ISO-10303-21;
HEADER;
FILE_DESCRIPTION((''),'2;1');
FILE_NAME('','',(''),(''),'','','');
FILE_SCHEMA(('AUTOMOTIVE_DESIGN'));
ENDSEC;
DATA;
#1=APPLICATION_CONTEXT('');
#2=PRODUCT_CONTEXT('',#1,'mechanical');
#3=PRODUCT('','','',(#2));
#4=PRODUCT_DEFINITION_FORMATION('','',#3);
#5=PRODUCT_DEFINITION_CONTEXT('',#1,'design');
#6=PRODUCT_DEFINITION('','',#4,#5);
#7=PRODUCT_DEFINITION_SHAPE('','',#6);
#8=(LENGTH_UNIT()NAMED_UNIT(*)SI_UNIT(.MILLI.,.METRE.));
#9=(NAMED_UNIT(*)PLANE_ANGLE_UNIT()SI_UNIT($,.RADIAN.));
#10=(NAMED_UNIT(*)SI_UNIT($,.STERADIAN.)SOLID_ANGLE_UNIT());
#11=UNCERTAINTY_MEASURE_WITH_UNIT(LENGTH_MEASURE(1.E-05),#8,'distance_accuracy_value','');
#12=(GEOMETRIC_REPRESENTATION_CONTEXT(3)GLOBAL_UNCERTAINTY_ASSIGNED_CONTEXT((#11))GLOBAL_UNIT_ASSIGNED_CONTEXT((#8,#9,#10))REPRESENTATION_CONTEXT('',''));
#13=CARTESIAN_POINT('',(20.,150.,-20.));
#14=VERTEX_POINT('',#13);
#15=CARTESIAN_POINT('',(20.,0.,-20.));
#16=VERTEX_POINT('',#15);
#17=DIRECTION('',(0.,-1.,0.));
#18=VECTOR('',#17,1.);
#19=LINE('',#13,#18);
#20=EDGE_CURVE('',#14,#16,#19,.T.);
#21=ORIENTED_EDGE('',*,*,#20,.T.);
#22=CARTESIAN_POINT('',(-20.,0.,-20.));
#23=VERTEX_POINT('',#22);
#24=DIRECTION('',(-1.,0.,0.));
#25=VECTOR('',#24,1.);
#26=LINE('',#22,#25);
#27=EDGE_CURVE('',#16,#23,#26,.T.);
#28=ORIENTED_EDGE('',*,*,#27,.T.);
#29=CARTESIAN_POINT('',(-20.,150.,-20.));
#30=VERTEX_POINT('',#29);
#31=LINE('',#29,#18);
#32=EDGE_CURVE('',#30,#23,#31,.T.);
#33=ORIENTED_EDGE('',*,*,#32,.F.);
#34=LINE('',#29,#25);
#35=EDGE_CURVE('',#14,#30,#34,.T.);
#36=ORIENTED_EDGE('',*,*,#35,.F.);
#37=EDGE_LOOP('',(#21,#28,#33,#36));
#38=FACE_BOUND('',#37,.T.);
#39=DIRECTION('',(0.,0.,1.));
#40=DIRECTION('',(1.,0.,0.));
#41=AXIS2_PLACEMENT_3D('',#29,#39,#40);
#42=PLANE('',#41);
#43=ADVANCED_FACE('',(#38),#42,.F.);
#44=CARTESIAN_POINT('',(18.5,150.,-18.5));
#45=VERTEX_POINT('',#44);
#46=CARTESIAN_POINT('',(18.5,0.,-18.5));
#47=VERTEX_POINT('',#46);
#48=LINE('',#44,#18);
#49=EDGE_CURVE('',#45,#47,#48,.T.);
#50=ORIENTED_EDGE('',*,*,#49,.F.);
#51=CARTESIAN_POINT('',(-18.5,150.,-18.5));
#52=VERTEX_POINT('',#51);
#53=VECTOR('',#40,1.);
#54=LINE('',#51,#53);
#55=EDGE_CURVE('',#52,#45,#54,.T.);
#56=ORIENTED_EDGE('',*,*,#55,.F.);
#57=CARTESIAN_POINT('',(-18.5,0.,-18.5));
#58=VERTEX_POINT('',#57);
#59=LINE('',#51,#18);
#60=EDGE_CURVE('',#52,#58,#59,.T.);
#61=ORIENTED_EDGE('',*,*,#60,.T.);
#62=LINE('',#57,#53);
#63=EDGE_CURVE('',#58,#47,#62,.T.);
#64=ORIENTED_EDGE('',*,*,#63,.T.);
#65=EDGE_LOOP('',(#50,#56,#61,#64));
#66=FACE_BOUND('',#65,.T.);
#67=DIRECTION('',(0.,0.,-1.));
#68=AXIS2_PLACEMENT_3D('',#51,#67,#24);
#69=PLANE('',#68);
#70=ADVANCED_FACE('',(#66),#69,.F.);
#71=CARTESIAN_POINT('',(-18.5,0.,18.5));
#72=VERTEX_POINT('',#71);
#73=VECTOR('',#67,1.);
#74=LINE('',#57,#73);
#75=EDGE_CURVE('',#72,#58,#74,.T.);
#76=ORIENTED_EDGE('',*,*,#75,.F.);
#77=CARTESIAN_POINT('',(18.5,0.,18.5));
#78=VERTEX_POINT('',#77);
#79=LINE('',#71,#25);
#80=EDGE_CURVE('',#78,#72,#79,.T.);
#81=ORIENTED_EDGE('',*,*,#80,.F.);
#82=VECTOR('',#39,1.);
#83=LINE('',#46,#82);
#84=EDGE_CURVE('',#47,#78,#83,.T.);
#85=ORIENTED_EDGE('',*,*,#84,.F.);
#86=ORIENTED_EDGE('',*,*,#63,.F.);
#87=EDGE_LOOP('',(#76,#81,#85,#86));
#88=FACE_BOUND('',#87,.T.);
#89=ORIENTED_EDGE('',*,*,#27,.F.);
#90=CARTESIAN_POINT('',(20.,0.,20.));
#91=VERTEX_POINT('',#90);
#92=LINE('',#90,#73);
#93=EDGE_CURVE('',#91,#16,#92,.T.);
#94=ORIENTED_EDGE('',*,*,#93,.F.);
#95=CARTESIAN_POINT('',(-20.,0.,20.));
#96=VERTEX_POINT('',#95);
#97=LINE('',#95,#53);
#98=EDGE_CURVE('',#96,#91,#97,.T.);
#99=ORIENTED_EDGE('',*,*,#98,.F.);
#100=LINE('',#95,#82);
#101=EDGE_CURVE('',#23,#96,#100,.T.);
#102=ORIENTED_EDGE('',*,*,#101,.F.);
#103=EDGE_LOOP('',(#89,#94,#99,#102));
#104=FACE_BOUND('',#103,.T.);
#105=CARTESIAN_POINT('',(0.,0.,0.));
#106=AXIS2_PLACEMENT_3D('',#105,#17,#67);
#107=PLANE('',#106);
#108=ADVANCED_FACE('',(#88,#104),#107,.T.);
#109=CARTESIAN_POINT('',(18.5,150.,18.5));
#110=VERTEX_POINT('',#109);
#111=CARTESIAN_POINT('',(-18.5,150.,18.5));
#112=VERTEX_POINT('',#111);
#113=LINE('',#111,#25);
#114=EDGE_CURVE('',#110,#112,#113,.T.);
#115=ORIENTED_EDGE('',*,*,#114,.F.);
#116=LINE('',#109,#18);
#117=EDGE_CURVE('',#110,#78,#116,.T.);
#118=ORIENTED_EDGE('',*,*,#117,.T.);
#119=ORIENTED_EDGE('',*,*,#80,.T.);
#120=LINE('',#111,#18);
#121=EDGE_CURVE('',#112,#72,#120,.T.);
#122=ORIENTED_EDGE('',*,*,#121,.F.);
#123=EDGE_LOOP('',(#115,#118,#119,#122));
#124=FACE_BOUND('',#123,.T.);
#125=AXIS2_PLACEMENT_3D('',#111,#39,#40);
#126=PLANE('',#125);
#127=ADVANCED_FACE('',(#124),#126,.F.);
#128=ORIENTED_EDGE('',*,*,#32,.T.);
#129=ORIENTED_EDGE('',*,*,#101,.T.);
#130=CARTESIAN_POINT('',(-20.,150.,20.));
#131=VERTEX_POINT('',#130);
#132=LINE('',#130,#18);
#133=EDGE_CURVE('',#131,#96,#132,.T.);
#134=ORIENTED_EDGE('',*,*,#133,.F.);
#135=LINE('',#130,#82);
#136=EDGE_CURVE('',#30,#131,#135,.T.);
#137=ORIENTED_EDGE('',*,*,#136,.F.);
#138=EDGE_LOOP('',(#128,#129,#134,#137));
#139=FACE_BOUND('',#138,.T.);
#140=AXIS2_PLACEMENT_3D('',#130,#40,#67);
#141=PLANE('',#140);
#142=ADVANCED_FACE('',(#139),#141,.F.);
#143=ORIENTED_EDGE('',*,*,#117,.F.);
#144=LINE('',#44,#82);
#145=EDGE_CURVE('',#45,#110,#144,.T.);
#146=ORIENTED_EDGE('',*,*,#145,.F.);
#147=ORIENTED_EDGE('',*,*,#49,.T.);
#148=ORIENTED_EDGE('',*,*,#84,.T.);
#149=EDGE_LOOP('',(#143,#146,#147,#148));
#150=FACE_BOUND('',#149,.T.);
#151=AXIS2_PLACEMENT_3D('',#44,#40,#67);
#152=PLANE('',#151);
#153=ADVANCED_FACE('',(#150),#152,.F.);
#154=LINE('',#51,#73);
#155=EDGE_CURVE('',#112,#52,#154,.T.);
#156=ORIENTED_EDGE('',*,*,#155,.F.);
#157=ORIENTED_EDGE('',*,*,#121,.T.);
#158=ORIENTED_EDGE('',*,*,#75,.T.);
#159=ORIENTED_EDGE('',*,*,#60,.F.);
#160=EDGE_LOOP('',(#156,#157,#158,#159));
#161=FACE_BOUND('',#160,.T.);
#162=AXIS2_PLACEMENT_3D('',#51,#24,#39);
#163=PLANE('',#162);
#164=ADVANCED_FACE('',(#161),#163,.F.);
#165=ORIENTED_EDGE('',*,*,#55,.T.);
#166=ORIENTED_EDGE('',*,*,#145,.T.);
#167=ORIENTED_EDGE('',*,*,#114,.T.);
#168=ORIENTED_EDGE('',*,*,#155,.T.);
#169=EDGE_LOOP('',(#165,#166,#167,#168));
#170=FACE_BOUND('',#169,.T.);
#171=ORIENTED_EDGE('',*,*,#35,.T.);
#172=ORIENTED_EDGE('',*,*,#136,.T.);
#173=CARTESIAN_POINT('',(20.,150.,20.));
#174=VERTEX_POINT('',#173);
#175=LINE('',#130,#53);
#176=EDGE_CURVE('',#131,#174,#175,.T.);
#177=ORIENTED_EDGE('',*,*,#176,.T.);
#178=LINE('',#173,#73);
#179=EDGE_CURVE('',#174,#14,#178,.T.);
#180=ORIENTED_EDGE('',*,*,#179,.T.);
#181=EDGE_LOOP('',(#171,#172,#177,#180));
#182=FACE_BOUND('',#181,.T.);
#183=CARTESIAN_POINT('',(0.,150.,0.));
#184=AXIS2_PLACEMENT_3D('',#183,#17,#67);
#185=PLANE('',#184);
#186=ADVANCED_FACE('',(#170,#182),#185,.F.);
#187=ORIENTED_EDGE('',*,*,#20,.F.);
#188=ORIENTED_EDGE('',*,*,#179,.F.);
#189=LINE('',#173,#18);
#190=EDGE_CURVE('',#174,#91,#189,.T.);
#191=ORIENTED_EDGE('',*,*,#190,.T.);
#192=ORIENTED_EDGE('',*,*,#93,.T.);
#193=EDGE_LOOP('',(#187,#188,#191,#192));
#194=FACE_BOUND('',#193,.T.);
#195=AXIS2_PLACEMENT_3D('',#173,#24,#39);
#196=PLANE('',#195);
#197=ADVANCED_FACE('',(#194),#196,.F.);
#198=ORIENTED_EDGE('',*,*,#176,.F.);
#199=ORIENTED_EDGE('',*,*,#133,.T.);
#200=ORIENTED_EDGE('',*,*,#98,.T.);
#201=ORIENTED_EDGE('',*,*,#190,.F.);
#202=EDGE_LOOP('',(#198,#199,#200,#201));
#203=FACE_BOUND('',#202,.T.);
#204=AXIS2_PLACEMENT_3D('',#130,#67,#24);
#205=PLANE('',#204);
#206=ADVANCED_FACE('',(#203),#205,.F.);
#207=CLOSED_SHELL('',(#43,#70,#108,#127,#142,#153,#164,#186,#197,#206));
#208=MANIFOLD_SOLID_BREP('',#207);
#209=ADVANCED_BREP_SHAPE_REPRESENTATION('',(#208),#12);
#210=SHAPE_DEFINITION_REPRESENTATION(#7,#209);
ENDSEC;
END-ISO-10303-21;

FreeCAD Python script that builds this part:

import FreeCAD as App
import Part
import Sketcher
Q = App.Units.Quantity

doc = App.newDocument("Part")
body = doc.addObject("PartDesign::Body", "Body")

# Sketch on XZ plane
sketch1 = body.newObject("Sketcher::SketchObject", "Sketch")
sketch1.AttachmentSupport = (doc.getObject("XZ_Plane"), [""])
sketch1.MapMode = "FlatFace"
sketch1.addGeometry([
    Part.LineSegment(App.Vector(-20, -20, 0), App.Vector(-20, 20, 0)),
    Part.LineSegment(App.Vector(-20, 20, 0), App.Vector(20, 20, 0)),
    Part.LineSegment(App.Vector(20, 20, 0), App.Vector(20, -20, 0)),
    Part.LineSegment(App.Vector(20, -20, 0), App.Vector(-20, -20, 0)),
], False)
sketch1.addConstraint([
    Sketcher.Constraint("Coincident", 0, 2, 1, 1),
    Sketcher.Constraint("Coincident", 1, 2, 2, 1),
    Sketcher.Constraint("Coincident", 2, 2, 3, 1),
    Sketcher.Constraint("Coincident", 3, 2, 0, 1),
    Sketcher.Constraint("Vertical", 0),
    Sketcher.Constraint("Horizontal", 1),
    Sketcher.Constraint("Vertical", 2),
    Sketcher.Constraint("Horizontal", 3),
    Sketcher.Constraint("Symmetric", 0, 2, 2, 2, -1, 1),
    Sketcher.Constraint("Equal", 3, 0),
    Sketcher.Constraint("DistanceX", 1, 1, 1, 2, Q("40 mm")),
])
pad1 = body.newObject("PartDesign::Pad", "Pad")
pad1.Profile = sketch1
pad1.Length = 150
pad1.Reversed = True

# Sketch on XZ plane
sketch2 = body.newObject("Sketcher::SketchObject", "Sketch001")
sketch2.AttachmentSupport = (doc.getObject("XZ_Plane"), [""])
sketch2.MapMode = "FlatFace"
sketch2.addGeometry([
    Part.LineSegment(App.Vector(-18, 18, 0), App.Vector(-18, -18, 0)),
    Part.LineSegment(App.Vector(-18, -18, 0), App.Vector(18, -18, 0)),
    Part.LineSegment(App.Vector(18, -18, 0), App.Vector(18, 18, 0)),
    Part.LineSegment(App.Vector(18, 18, 0), App.Vector(-18, 18, 0)),
], False)
sketch2.addConstraint([
    Sketcher.Constraint("Coincident", 0, 2, 1, 1),
    Sketcher.Constraint("Coincident", 1, 2, 2, 1),
    Sketcher.Constraint("Coincident", 2, 2, 3, 1),
    Sketcher.Constraint("Coincident", 3, 2, 0, 1),
    Sketcher.Constraint("Vertical", 0),
    Sketcher.Constraint("Horizontal", 1),
    Sketcher.Constraint("Vertical", 2),
    Sketcher.Constraint("Horizontal", 3),
    Sketcher.Constraint("Symmetric", 0, 2, 2, 2, -1, 1),
    Sketcher.Constraint("Equal", 3, 0),
    Sketcher.Constraint("DistanceX", 1, 1, 1, 2, Q("37 mm")),
])
pocket1 = body.newObject("PartDesign::Pocket", "Pocket")
pocket1.Profile = sketch2
pocket1.Type = "ThroughAll"

doc.recompute()
